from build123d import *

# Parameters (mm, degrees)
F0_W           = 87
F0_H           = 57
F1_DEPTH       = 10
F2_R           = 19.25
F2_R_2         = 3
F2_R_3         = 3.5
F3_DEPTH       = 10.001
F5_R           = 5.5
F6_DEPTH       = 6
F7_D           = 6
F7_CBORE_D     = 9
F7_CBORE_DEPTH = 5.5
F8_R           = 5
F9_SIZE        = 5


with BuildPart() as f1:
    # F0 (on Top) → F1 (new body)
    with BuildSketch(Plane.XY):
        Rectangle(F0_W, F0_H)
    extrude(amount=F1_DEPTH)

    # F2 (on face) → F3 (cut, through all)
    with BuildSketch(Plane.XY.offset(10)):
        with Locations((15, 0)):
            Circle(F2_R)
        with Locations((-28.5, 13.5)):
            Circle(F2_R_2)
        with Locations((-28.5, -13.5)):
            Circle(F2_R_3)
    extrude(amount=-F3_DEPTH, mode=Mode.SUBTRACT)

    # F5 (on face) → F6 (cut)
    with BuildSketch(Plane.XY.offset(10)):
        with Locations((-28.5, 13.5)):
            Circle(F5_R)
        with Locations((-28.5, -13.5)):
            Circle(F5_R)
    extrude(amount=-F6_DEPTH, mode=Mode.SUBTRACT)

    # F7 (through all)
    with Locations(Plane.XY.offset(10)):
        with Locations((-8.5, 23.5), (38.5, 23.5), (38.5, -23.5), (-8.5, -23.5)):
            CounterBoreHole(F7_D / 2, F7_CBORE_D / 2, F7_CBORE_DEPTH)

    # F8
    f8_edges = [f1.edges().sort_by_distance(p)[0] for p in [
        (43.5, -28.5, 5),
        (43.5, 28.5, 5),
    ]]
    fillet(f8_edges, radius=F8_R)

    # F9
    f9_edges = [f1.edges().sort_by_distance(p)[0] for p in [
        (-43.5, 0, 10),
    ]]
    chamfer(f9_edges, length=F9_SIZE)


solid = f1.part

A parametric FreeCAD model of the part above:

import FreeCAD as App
import Part
import Sketcher


def edges_at(feature, points):
    """Names of the edges that pass closest to the given points."""
    edges = feature.Shape.Edges
    near = lambda p: min(range(len(edges)), key=lambda i: edges[i].distToShape(Part.Vertex(*p))[0])
    return sorted({f"Edge{near(p) + 1}" for p in points})


def add_polygon(sketch, points):
    """Adds a closed chain of lines whose ends are joined by coincident constraints."""
    first, n = sketch.GeometryCount, len(points)
    for a, b in zip(points, points[1:] + points[:1]):
        sketch.addGeometry(Part.LineSegment(App.Vector(*a, 0), App.Vector(*b, 0)), False)
    for i in range(n):
        sketch.addConstraint(Sketcher.Constraint("Coincident", first + i, 2, first + (i + 1) % n, 1))

doc = App.newDocument("Part")
body = doc.addObject("PartDesign::Body", "Body")

# Sketch on XY plane
sketch1 = body.newObject("Sketcher::SketchObject", "Sketch")
sketch1.AttachmentSupport = (doc.getObject("XY_Plane"), [""])
sketch1.MapMode = "FlatFace"
add_polygon(sketch1, [(-43.5, 28.5), (-43.5, -28.5), (43.5, -28.5), (43.5, 28.5)])  # lines 0-3
sketch1.addConstraint([
    Sketcher.Constraint("Vertical", 0),
    Sketcher.Constraint("Horizontal", 1),
    Sketcher.Constraint("Vertical", 2),
    Sketcher.Constraint("Horizontal", 3),
    Sketcher.Constraint("Symmetric", 0, 2, 2, 2, -1, 1),
    Sketcher.Constraint("DistanceX", 1, 1, 1, 2, 87.0),
    Sketcher.Constraint("DistanceY", 0, 2, 0, 1, 57.0),
])
pad1 = body.newObject("PartDesign::Pad", "Pad")
pad1.Profile = sketch1
pad1.Length = 10

# Sketch on XY plane
sketch2 = body.newObject("Sketcher::SketchObject", "Sketch001")
sketch2.AttachmentSupport = (doc.getObject("XY_Plane"), [""])
sketch2.MapMode = "FlatFace"
sketch2.AttachmentOffset = App.Placement(App.Vector(0, 0, 10), App.Rotation())
sketch2.addGeometry([
    Part.Circle(App.Vector(15, 0, 0), App.Vector(0, 0, 1), 19.25),
    Part.Circle(App.Vector(-28.5, 13.5, 0), App.Vector(0, 0, 1), 3),
    Part.Circle(App.Vector(-28.5, -13.5, 0), App.Vector(0, 0, 1), 3.5),
], False)
sketch2.addConstraint([
    Sketcher.Constraint("Symmetric", 1, 3, 2, 3, -1),
    Sketcher.Constraint("PointOnObject", 0, 3, -1),
    Sketcher.Constraint("Diameter", 1, 6.0),
    Sketcher.Constraint("Diameter", 2, 7.0),
    Sketcher.Constraint("Diameter", 0, 38.5),
    Sketcher.Constraint("DistanceX", -1, 1, 0, 3, 15.0),
    Sketcher.Constraint("DistanceY", 2, 3, 1, 3, 27.0),
    Sketcher.Constraint("DistanceX", 1, 3, -1, 1, 28.5),
])
pocket1 = body.newObject("PartDesign::Pocket", "Pocket")
pocket1.Profile = sketch2
pocket1.Type = "ThroughAll"

# Sketch on XY plane
sketch3 = body.newObject("Sketcher::SketchObject", "Sketch002")
sketch3.AttachmentSupport = (doc.getObject("XY_Plane"), [""])
sketch3.MapMode = "FlatFace"
sketch3.AttachmentOffset = App.Placement(App.Vector(0, 0, 10), App.Rotation())
sketch3.addGeometry([
    Part.Circle(App.Vector(-28.5, 13.5, 0), App.Vector(0, 0, 1), 5.5),
    Part.Circle(App.Vector(-28.5, -13.5, 0), App.Vector(0, 0, 1), 5.5),
], False)
sketch3.addConstraint([
    Sketcher.Constraint("Equal", 0, 1),
    Sketcher.Constraint("Symmetric", 0, 3, 1, 3, -1),
    Sketcher.Constraint("Diameter", 0, 11.0),
    Sketcher.Constraint("DistanceY", 1, 3, 0, 3, 27.0),
    Sketcher.Constraint("DistanceX", 0, 3, -1, 1, 28.5),
])
pocket2 = body.newObject("PartDesign::Pocket", "Pocket001")
pocket2.Profile = sketch3
pocket2.Length = 6

# Sketch on XY plane
sketch4 = body.newObject("Sketcher::SketchObject", "Sketch003")
sketch4.AttachmentSupport = (doc.getObject("XY_Plane"), [""])
sketch4.MapMode = "FlatFace"
sketch4.AttachmentOffset = App.Placement(App.Vector(0, 0, 10), App.Rotation())
sketch4.addGeometry([
    Part.Circle(App.Vector(-8.5, 23.5, 0), App.Vector(0, 0, 1), 3),
    Part.Circle(App.Vector(38.5, 23.5, 0), App.Vector(0, 0, 1), 3),
    Part.Circle(App.Vector(38.5, -23.5, 0), App.Vector(0, 0, 1), 3),
    Part.Circle(App.Vector(-8.5, -23.5, 0), App.Vector(0, 0, 1), 3),
], False)
sketch4.addConstraint([
    Sketcher.Constraint("Equal", 0, 1),
    Sketcher.Constraint("Equal", 1, 2),
    Sketcher.Constraint("Equal", 2, 3),
    Sketcher.Constraint("Symmetric", 1, 3, 2, 3, -1),
    Sketcher.Constraint("Symmetric", 0, 3, 3, 3, -1),
    Sketcher.Constraint("Horizontal", 0, 3, 1, 3),
    Sketcher.Constraint("Diameter", 0, 6.0),
    Sketcher.Constraint("DistanceX", 0, 3, 1, 3, 47.0),
    Sketcher.Constraint("DistanceY", 2, 3, 1, 3, 47.0),
    Sketcher.Constraint("DistanceX", 0, 3, -1, 1, 8.5),
])
doc.recompute()
hole = body.newObject("PartDesign::Hole", "Hole")
hole.Profile = sketch4
hole.ThreadType = "None"
hole.Diameter = 6
hole.DepthType = "ThroughAll"
hole.HoleCutType = "Counterbore"
hole.HoleCutDiameter = 9
hole.HoleCutDepth = 5.5
doc.recompute()

fillet = body.newObject("PartDesign::Fillet", "Fillet")
fillet.Base = (hole, edges_at(hole, [(43.5, -28.5, 5), (43.5, 28.5, 5)]))
fillet.Radius = 5
doc.recompute()

chamfer = body.newObject("PartDesign::Chamfer", "Chamfer")
chamfer.Base = (fillet, edges_at(fillet, [(-43.5, 0, 10)]))
chamfer.Size = 5

doc.recompute()
